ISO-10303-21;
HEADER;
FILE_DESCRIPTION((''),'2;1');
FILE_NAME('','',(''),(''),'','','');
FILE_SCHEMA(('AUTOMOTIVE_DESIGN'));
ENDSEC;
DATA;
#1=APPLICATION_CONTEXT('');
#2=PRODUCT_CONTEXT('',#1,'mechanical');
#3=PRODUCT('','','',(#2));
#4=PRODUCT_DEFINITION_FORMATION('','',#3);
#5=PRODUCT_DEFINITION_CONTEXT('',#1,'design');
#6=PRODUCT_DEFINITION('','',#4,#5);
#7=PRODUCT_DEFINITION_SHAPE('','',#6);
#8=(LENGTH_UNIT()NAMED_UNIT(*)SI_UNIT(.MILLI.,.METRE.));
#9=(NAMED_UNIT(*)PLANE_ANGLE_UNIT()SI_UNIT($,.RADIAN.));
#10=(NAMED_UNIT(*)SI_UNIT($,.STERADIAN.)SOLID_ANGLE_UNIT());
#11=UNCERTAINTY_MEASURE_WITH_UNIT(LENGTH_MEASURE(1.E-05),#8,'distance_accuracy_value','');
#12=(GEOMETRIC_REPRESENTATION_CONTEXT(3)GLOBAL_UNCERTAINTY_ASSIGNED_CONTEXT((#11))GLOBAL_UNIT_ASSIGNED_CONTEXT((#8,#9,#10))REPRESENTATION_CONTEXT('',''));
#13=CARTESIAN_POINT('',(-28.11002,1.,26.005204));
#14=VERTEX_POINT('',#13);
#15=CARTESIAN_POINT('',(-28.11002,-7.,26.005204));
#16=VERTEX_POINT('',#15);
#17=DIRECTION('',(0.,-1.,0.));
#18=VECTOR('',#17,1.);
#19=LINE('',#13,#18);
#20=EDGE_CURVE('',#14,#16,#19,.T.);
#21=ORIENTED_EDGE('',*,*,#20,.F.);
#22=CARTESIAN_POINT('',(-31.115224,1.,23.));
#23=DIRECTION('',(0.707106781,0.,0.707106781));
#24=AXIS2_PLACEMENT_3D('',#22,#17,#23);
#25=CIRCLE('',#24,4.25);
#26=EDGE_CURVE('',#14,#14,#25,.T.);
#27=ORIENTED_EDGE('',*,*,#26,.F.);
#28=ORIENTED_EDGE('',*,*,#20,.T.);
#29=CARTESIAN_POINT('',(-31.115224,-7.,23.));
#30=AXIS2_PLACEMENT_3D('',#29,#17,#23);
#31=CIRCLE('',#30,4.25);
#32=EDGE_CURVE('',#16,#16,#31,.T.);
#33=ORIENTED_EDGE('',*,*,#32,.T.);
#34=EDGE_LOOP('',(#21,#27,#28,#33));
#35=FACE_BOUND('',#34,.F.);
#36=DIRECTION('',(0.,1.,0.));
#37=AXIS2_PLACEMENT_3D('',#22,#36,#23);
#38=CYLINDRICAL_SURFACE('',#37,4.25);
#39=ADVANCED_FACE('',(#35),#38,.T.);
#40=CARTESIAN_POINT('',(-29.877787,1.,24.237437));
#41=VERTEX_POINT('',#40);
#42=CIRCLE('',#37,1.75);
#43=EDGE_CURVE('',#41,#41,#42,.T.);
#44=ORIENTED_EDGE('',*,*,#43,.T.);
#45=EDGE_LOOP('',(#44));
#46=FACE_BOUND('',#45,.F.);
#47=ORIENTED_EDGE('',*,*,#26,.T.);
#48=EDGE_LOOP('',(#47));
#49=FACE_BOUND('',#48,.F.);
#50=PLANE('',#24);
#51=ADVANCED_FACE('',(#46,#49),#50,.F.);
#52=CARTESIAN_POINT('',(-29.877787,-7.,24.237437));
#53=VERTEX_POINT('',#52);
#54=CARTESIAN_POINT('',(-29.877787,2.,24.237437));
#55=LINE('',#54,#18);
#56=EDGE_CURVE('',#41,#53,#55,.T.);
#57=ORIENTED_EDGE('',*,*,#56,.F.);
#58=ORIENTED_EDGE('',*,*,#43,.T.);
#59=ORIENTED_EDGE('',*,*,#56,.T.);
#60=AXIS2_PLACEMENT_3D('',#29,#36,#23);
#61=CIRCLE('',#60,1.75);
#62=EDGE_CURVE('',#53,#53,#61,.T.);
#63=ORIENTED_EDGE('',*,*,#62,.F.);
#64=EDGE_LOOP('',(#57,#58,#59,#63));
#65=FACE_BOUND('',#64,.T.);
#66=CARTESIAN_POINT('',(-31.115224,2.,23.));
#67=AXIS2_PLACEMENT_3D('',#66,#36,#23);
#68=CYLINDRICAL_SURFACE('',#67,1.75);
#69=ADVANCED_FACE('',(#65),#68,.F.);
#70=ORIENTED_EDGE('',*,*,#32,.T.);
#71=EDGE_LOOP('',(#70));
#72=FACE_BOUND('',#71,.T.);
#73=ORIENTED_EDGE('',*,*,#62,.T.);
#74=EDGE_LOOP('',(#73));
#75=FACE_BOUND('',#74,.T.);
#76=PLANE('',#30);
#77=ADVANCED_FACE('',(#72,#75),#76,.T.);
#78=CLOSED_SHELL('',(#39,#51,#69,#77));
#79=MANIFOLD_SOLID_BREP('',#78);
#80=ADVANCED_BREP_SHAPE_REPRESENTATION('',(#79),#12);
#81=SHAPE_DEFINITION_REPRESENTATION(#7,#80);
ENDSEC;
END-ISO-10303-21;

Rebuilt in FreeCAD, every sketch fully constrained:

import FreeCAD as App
import Part
import Sketcher

V = App.Vector
Q = App.Units.Quantity

doc = App.newDocument("Part")
body = doc.addObject("PartDesign::Body", "Body")

sketch1 = body.newObject("Sketcher::SketchObject", "Sketch")
sketch1.AttachmentSupport = (doc.getObject("XY_Plane"), [""])
sketch1.MapMode = "FlatFace"
sketch1.AttachmentOffset = App.Placement(V(0, 0, -1), App.Rotation())
sketch1.addGeometry(Part.Circle(V(0, 0, 0), V(0, 0, 1), 1.8), False)
sketch1.addConstraint(Sketcher.Constraint("Coincident", 0, 3, -1, 1))
sketch1.addConstraint(Sketcher.Constraint("Diameter", 0, Q("3.5 mm")))
pad1 = body.newObject("PartDesign::Pad", "Pad")
pad1.Profile = sketch1
pad1.Length = 10
body2 = doc.addObject("PartDesign::Body", "Body001")

sketch2 = body2.newObject("Sketcher::SketchObject", "Sketch001")
sketch2.AttachmentSupport = (doc.getObject("XY_Plane001"), [""])
sketch2.MapMode = "FlatFace"
sketch2.addGeometry(Part.Circle(V(0, 0, 0), V(0, 0, 1), 4.2), False)
sketch2.addConstraint(Sketcher.Constraint("Coincident", 0, 3, -1, 1))
sketch2.addConstraint(Sketcher.Constraint("Diameter", 0, Q("8.5 mm")))
pad2 = body2.newObject("PartDesign::Pad", "Pad001")
pad2.Profile = sketch2
pad2.Length = 8
doc.recompute()

boolean = body2.newObject("PartDesign::Boolean", "Boolean")
boolean.Type = "Cut"
boolean.addObjects([body])
body3 = doc.addObject("PartDesign::Body", "Body002")
doc.recompute()

body2.Placement = App.Placement(V(0, 0, 0), App.Rotation(V(1, 0, 0), 90))
boolean2 = body3.newObject("PartDesign::Boolean", "Boolean001")
boolean2.Type = "Fuse"
boolean2.addObjects([body2])
body4 = doc.addObject("PartDesign::Body", "Body003")
doc.recompute()

body3.Placement = App.Placement(V(0, 0, 0), App.Rotation(V(0, 1, 0), 315))
boolean3 = body4.newObject("PartDesign::Boolean", "Boolean002")
boolean3.Type = "Fuse"
boolean3.addObjects([body3])
body5 = doc.addObject("PartDesign::Body", "Body004")
doc.recompute()

body4.Placement = App.Placement(V(-31.115224, 1, 23), App.Rotation(V(0, 0, 1), 0))
boolean4 = body5.newObject("PartDesign::Boolean", "Boolean003")
boolean4.Type = "Fuse"
boolean4.addObjects([body4])

doc.recompute()
